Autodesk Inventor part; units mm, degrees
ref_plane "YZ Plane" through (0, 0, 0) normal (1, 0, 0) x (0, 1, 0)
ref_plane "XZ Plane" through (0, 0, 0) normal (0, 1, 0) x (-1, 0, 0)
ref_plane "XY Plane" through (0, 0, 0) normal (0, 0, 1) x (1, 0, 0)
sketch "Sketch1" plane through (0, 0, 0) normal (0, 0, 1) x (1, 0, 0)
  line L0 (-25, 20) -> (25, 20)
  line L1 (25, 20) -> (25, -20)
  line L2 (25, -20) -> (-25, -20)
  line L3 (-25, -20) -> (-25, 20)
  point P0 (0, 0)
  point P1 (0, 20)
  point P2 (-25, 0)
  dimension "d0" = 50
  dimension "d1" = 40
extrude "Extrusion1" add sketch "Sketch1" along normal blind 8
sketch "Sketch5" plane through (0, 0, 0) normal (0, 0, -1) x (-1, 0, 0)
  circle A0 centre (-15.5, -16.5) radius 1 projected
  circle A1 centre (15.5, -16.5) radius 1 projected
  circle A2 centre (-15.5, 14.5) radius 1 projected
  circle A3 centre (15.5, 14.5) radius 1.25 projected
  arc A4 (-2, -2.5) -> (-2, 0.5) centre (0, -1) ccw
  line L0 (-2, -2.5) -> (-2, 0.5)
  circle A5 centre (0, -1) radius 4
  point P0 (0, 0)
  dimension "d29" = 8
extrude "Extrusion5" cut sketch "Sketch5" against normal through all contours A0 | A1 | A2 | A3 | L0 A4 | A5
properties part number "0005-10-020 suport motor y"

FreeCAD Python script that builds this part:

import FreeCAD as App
import Part
import Sketcher
Q = App.Units.Quantity

doc = App.newDocument("Part")
body = doc.addObject("PartDesign::Body", "Body")

# Sketch on XY plane
sketch1 = body.newObject("Sketcher::SketchObject", "Sketch")
sketch1.AttachmentSupport = (doc.getObject("XY_Plane"), [""])
sketch1.MapMode = "FlatFace"
sketch1.addGeometry(Part.LineSegment(App.Vector(25, 20, 0), App.Vector(-25, 20, 0)), False)
sketch1.addGeometry(Part.LineSegment(App.Vector(-25, 20, 0), App.Vector(-25, -20, 0)), False)
sketch1.addGeometry(Part.LineSegment(App.Vector(-25, -20, 0), App.Vector(25, -20, 0)), False)
sketch1.addGeometry(Part.LineSegment(App.Vector(25, -20, 0), App.Vector(25, 20, 0)), False)
sketch1.addConstraint(Sketcher.Constraint("Coincident", 0, 2, 1, 1))
sketch1.addConstraint(Sketcher.Constraint("Coincident", 1, 2, 2, 1))
sketch1.addConstraint(Sketcher.Constraint("Coincident", 2, 2, 3, 1))
sketch1.addConstraint(Sketcher.Constraint("Coincident", 3, 2, 0, 1))
sketch1.addConstraint(Sketcher.Constraint("Horizontal", 0))
sketch1.addConstraint(Sketcher.Constraint("Vertical", 1))
sketch1.addConstraint(Sketcher.Constraint("Horizontal", 2))
sketch1.addConstraint(Sketcher.Constraint("Vertical", 3))
sketch1.addConstraint(Sketcher.Constraint("Symmetric", 0, 2, 2, 2, -1, 1))
sketch1.addConstraint(Sketcher.Constraint("DistanceX", 0, 2, 0, 1, Q("50 mm")))
sketch1.addConstraint(Sketcher.Constraint("DistanceY", 1, 2, 1, 1, Q("40 mm")))
pad1 = body.newObject("PartDesign::Pad", "Pad")
pad1.Profile = sketch1
pad1.Length = 8

# Sketch on XY plane
sketch2 = body.newObject("Sketcher::SketchObject", "Sketch001")
sketch2.AttachmentSupport = (doc.getObject("XY_Plane"), [""])
sketch2.MapMode = "FlatFace"
sketch2.addGeometry(Part.Circle(App.Vector(15.5, -16.5, 0), App.Vector(0, 0, 1), 1), False)
sketch2.addGeometry(Part.Circle(App.Vector(-15.5, -16.5, 0), App.Vector(0, 0, 1), 1), False)
sketch2.addGeometry(Part.Circle(App.Vector(15.5, 14.5, 0), App.Vector(0, 0, 1), 1), False)
sketch2.addGeometry(Part.Circle(App.Vector(-15.5, 14.5, 0), App.Vector(0, 0, 1), 1.25), False)
sketch2.addGeometry(Part.Circle(App.Vector(0, -1, 0), App.Vector(0, 0, 1), 4), False)
sketch2.addConstraint(Sketcher.Constraint("Equal", 0, 1))
sketch2.addConstraint(Sketcher.Constraint("Equal", 1, 2))
sketch2.addConstraint(Sketcher.Constraint("Symmetric", 0, 3, 1, 3, -2))
sketch2.addConstraint(Sketcher.Constraint("Symmetric", 2, 3, 3, 3, -2))
sketch2.addConstraint(Sketcher.Constraint("PointOnObject", 4, 3, -2))
sketch2.addConstraint(Sketcher.Constraint("Vertical", 0, 3, 2, 3))
sketch2.addConstraint(Sketcher.Constraint("Diameter", 4, Q("8 mm")))
sketch2.addConstraint(Sketcher.Constraint("Diameter", 0, Q("2 mm")))
sketch2.addConstraint(Sketcher.Constraint("Diameter", 3, Q("2.5 mm")))
sketch2.addConstraint(Sketcher.Constraint("DistanceY", 4, 3, -1, 1, Q("1 mm")))
sketch2.addConstraint(Sketcher.Constraint("DistanceX", 1, 3, 0, 3, Q("31 mm")))
sketch2.addConstraint(Sketcher.Constraint("DistanceY", 0, 3, 2, 3, Q("31 mm")))
sketch2.addConstraint(Sketcher.Constraint("DistanceY", 0, 3, -1, 1, Q("16.5 mm")))
pocket1 = body.newObject("PartDesign::Pocket", "Pocket")
pocket1.Profile = sketch2
pocket1.Type = "ThroughAll"
pocket1.Reversed = True

doc.recompute()
